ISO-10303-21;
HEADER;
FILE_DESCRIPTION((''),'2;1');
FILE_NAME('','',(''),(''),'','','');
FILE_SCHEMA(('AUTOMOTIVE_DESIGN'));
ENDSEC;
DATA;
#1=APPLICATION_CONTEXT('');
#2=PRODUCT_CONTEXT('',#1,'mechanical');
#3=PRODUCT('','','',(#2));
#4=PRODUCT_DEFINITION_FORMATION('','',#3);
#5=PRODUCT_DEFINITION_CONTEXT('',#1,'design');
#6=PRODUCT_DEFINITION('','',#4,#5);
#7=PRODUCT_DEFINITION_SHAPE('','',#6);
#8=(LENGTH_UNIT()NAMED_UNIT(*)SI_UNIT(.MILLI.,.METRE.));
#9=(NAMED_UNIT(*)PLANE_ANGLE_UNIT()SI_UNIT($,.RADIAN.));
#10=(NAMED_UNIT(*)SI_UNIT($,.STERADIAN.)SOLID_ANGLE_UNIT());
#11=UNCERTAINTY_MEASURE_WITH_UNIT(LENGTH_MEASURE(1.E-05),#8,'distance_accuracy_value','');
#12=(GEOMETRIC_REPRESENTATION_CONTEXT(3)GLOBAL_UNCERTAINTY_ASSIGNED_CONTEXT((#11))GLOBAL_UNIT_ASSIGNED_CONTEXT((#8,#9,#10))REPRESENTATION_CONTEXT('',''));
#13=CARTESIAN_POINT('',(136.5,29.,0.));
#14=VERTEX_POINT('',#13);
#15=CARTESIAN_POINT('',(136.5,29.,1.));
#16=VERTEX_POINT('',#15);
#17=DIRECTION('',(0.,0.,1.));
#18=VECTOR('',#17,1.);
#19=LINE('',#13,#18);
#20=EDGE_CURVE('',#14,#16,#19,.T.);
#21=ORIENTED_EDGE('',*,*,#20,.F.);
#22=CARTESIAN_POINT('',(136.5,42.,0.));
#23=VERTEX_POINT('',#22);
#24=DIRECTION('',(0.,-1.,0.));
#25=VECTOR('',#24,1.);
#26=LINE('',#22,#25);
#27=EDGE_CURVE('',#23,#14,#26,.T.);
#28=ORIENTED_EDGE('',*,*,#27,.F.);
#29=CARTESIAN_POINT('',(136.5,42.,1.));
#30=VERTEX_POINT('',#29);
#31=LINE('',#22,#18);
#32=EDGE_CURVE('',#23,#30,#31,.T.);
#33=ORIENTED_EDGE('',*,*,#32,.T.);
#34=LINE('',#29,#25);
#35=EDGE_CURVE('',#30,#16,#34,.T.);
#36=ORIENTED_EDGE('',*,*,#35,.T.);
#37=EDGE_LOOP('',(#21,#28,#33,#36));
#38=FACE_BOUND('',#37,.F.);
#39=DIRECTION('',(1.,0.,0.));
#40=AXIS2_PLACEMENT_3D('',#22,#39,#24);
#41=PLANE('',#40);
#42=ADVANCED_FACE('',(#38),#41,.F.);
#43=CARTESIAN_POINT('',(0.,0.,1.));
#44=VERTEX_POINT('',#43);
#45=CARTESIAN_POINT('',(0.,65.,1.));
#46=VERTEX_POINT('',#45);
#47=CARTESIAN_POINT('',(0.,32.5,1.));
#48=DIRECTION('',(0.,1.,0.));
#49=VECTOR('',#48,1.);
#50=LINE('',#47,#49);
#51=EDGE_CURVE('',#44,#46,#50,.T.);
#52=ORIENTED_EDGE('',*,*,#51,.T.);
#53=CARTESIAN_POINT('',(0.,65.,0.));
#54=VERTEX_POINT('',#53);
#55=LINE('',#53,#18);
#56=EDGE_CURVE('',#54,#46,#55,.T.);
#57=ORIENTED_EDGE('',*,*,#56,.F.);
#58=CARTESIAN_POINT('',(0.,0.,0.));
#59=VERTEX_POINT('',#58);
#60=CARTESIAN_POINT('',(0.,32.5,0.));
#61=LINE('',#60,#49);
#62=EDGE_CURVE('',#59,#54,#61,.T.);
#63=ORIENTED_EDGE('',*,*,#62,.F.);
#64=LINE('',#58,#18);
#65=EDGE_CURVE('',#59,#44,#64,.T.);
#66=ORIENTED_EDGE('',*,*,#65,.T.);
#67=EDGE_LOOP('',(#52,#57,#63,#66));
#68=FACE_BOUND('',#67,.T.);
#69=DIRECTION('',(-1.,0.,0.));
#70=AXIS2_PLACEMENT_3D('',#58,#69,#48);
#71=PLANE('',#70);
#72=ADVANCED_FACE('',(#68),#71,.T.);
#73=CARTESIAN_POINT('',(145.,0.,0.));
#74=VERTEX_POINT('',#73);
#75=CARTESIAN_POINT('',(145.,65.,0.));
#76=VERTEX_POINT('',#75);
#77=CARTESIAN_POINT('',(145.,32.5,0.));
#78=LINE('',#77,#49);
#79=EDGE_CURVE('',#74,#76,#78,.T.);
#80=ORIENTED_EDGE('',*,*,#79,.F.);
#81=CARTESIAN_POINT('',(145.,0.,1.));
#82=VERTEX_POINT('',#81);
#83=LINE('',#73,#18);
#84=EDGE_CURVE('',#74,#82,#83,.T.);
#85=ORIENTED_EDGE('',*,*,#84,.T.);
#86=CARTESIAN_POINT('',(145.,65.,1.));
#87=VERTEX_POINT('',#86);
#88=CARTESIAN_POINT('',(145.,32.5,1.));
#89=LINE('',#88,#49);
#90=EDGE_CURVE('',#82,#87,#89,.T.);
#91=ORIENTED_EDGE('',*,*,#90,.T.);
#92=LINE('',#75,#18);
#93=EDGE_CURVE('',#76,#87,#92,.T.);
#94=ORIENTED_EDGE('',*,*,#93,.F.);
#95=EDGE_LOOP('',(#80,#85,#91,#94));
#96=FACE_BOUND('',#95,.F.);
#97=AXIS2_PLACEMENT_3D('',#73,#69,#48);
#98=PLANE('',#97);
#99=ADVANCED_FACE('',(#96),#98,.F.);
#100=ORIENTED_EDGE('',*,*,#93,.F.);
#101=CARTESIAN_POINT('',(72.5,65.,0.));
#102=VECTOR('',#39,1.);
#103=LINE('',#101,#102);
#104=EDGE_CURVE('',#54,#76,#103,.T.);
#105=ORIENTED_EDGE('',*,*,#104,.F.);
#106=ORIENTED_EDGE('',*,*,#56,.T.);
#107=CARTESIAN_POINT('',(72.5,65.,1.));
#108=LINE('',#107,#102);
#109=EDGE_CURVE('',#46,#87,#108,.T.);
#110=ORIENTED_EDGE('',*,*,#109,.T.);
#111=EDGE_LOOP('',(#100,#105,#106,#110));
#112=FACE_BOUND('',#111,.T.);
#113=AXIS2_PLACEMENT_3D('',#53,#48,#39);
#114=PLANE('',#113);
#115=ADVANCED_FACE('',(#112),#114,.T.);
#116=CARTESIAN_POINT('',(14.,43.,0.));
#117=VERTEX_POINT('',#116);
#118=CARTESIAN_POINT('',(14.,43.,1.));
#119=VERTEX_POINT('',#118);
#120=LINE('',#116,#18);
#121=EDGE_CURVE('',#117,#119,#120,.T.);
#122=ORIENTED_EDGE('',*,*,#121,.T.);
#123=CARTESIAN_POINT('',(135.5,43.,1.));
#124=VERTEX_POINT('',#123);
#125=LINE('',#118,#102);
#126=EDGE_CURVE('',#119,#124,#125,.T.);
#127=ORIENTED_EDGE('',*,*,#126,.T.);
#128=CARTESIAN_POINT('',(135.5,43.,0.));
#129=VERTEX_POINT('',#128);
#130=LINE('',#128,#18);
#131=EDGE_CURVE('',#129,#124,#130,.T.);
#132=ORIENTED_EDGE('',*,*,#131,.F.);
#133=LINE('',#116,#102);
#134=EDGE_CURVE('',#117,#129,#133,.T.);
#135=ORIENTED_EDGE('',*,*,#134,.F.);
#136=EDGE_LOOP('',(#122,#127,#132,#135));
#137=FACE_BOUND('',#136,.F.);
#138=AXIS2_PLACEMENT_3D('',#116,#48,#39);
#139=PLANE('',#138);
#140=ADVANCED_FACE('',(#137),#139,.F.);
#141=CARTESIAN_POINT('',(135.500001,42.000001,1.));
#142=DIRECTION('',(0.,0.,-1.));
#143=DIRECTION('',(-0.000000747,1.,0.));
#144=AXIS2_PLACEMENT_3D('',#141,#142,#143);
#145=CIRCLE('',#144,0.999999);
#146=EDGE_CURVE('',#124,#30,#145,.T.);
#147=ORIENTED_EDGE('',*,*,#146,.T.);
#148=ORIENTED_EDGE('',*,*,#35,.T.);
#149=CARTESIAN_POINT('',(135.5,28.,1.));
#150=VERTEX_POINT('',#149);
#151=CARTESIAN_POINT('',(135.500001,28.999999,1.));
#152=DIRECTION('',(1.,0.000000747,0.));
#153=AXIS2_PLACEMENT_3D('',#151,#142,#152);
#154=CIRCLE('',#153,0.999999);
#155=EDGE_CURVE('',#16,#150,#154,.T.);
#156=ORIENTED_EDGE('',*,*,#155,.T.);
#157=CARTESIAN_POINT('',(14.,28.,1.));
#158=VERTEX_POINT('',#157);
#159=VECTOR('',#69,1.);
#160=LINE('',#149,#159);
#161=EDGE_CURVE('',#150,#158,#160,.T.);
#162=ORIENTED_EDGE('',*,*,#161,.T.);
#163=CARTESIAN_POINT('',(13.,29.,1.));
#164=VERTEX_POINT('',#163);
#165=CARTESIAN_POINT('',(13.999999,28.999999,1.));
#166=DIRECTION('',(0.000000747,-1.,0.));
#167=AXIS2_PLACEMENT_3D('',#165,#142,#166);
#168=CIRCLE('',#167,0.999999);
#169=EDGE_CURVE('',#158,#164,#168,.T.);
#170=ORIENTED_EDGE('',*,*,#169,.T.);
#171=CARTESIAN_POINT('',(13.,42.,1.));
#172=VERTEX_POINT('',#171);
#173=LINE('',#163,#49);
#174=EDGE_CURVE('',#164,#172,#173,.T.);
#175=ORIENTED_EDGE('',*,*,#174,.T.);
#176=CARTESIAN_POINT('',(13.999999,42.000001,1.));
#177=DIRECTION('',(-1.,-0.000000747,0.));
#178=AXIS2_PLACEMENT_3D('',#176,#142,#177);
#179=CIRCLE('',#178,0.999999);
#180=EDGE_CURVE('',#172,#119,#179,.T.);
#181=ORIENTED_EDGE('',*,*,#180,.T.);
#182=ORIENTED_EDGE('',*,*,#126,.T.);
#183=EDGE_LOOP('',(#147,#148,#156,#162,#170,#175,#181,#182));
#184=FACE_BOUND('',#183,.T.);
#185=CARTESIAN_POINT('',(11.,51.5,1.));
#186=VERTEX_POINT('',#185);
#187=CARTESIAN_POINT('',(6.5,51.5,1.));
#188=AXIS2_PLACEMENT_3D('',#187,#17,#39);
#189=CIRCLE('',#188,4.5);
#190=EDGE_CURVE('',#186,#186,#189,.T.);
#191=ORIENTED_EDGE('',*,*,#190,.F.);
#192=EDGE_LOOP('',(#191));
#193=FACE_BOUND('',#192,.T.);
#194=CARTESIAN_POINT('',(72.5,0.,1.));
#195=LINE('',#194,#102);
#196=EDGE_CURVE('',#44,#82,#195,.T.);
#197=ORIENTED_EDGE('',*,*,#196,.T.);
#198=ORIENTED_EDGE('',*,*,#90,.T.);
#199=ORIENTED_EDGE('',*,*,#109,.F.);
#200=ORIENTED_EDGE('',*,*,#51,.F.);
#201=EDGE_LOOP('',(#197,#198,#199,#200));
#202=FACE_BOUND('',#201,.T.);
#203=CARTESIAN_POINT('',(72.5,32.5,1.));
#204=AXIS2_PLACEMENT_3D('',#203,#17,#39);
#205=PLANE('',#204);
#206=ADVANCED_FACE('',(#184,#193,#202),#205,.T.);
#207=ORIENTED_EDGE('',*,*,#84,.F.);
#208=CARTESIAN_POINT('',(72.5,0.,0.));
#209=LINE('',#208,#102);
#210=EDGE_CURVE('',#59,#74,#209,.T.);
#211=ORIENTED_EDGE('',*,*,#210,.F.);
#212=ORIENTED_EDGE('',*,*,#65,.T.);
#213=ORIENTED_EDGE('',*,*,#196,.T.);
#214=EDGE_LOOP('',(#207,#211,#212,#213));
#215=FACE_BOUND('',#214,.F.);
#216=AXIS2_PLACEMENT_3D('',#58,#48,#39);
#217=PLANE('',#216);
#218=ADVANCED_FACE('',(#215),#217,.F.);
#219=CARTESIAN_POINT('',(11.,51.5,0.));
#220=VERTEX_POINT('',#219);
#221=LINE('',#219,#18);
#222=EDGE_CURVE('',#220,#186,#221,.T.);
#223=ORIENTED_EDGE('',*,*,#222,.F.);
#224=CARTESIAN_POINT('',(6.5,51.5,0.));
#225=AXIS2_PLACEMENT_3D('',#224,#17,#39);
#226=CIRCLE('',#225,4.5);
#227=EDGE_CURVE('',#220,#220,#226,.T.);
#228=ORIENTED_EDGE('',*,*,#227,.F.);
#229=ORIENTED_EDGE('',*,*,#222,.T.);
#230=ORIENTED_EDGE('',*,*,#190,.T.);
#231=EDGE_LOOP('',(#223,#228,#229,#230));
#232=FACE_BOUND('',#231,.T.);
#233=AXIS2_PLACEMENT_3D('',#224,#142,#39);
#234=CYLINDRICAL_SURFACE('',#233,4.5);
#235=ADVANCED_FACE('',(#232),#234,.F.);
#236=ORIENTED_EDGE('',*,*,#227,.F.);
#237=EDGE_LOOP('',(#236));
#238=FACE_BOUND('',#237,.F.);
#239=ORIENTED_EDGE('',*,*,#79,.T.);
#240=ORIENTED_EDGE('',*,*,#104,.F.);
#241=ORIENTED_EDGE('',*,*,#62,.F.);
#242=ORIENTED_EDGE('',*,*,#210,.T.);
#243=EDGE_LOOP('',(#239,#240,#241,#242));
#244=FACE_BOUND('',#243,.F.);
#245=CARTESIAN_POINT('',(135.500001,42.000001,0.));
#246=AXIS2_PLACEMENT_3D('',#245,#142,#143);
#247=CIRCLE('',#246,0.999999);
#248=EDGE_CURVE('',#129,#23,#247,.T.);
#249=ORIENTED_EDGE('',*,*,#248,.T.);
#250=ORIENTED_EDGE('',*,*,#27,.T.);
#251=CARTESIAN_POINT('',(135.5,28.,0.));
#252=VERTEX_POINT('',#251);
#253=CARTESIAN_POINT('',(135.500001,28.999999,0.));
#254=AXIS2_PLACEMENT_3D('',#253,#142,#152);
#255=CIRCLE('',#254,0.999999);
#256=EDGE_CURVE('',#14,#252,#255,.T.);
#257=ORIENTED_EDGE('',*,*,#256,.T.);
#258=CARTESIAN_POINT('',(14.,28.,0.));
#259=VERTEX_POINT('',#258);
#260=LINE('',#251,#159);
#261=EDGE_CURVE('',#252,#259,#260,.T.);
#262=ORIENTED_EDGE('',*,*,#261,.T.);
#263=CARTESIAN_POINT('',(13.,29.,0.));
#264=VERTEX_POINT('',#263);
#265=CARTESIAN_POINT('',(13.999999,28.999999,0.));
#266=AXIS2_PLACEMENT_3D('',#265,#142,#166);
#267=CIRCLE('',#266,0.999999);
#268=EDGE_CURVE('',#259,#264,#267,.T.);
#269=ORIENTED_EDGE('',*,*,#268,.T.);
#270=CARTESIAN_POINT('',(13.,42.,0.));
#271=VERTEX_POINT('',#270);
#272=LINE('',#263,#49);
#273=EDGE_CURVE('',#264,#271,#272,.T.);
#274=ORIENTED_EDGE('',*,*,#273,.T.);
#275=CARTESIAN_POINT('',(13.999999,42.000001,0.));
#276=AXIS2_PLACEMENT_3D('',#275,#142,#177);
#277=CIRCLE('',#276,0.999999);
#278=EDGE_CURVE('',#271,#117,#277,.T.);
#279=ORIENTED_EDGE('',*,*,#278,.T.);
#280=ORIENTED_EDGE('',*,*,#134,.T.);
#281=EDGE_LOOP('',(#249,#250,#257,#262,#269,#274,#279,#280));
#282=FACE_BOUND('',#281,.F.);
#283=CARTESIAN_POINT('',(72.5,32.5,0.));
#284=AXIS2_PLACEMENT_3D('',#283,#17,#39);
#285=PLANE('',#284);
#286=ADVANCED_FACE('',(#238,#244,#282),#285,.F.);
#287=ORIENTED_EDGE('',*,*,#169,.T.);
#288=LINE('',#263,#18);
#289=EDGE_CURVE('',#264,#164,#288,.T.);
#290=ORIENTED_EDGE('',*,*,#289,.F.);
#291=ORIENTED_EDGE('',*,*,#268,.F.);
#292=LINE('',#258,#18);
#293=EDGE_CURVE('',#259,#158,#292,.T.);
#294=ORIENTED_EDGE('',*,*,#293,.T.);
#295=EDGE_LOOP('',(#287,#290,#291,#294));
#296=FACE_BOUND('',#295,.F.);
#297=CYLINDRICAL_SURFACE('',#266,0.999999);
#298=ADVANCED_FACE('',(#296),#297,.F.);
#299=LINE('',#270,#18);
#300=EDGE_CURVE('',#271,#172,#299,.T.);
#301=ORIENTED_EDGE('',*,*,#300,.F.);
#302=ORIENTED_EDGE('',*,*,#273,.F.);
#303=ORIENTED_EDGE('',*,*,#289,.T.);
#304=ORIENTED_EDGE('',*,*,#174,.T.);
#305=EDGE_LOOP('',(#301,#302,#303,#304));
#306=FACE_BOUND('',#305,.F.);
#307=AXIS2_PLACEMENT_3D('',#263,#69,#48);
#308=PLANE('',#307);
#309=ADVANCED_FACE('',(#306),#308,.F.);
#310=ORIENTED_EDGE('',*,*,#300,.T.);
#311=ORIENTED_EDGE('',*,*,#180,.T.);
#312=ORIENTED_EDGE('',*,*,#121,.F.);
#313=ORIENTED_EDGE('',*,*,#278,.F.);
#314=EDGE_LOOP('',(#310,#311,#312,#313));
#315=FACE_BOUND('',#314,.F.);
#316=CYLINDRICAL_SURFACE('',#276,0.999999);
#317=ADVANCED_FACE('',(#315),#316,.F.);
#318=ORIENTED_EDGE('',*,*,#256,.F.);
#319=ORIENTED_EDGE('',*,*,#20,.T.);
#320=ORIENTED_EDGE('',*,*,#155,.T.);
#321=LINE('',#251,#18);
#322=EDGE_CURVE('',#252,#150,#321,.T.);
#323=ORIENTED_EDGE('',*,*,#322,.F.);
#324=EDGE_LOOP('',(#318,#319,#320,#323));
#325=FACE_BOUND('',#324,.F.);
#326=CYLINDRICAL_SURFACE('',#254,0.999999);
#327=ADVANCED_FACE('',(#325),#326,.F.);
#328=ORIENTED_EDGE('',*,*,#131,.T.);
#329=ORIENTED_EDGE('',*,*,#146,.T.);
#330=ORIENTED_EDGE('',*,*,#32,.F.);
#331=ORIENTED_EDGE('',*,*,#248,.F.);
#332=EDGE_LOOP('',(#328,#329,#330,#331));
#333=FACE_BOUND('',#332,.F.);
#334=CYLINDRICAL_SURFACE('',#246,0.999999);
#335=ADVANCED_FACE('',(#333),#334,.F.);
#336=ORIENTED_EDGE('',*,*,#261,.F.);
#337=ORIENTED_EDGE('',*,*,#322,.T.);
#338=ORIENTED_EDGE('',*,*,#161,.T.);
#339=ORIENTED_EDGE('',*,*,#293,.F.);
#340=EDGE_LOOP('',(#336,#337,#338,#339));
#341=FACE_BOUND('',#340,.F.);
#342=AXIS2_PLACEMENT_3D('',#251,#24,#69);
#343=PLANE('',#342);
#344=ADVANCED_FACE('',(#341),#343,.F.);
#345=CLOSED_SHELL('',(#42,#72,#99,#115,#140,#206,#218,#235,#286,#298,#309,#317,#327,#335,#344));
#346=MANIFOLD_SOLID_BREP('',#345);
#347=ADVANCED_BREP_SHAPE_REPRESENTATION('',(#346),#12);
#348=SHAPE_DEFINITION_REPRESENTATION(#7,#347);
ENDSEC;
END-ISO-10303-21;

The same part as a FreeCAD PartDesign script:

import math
import FreeCAD as App
import Part
import Sketcher


def add_polygon(sketch, points):
    """Adds a closed chain of lines whose ends are joined by coincident constraints."""
    first, n = sketch.GeometryCount, len(points)
    for a, b in zip(points, points[1:] + points[:1]):
        sketch.addGeometry(Part.LineSegment(App.Vector(*a, 0), App.Vector(*b, 0)), False)
    for i in range(n):
        sketch.addConstraint(Sketcher.Constraint("Coincident", first + i, 2, first + (i + 1) % n, 1))

doc = App.newDocument("Part")
body = doc.addObject("PartDesign::Body", "Body")

# Sketch on XY plane
sketch1 = doc.addObject("Sketcher::SketchObject", "Sketch")
body.addObject(sketch1)
sketch1.AttachmentSupport = (doc.XY_Plane, [""])
sketch1.MapMode = "FlatFace"
add_polygon(sketch1, [(0, 65), (0, 0), (145, 0), (145, 65)])  # lines 0-3
sketch1.addGeometry(Part.LineSegment(App.Vector(13, 29, 0), App.Vector(13, 42, 0)), False)  # 4
sketch1.addGeometry(Part.ArcOfCircle(Part.Circle(App.Vector(14, 42, 0), App.Vector(0, 0, 1), 1), math.radians(90), math.radians(180)), False)  # 5
sketch1.addGeometry(Part.LineSegment(App.Vector(14, 43, 0), App.Vector(135.5, 43, 0)), False)  # 6
sketch1.addGeometry(Part.ArcOfCircle(Part.Circle(App.Vector(135.5, 42, 0), App.Vector(0, 0, 1), 1), math.radians(0), math.radians(90)), False)  # 7
sketch1.addGeometry(Part.LineSegment(App.Vector(136.5, 42, 0), App.Vector(136.5, 29, 0)), False)  # 8
sketch1.addGeometry(Part.ArcOfCircle(Part.Circle(App.Vector(135.5, 29, 0), App.Vector(0, 0, 1), 1), math.radians(-90), math.radians(0)), False)  # 9
sketch1.addGeometry(Part.LineSegment(App.Vector(135.5, 28, 0), App.Vector(14, 28, 0)), False)  # 10
sketch1.addGeometry(Part.ArcOfCircle(Part.Circle(App.Vector(14, 29, 0), App.Vector(0, 0, 1), 1), math.radians(180), math.radians(270)), False)  # 11
sketch1.addGeometry(Part.Circle(App.Vector(6.5, 51.5, 0), App.Vector(0, 0, 1), 4.5), False)  # 12
sketch1.addConstraint([
    Sketcher.Constraint("Tangent", 4, 2, 5, 2),
    Sketcher.Constraint("Tangent", 5, 1, 6, 1),
    Sketcher.Constraint("Tangent", 6, 2, 7, 2),
    Sketcher.Constraint("Tangent", 7, 1, 8, 1),
    Sketcher.Constraint("Tangent", 8, 2, 9, 2),
    Sketcher.Constraint("Tangent", 9, 1, 10, 1),
    Sketcher.Constraint("Tangent", 10, 2, 11, 2),
    Sketcher.Constraint("Tangent", 11, 1, 4, 1),
    Sketcher.Constraint("Vertical", 0),
    Sketcher.Constraint("Horizontal", 1),
    Sketcher.Constraint("Vertical", 2),
    Sketcher.Constraint("Horizontal", 3),
    Sketcher.Constraint("Vertical", 4),
    Sketcher.Constraint("Horizontal", 6),
    Sketcher.Constraint("Vertical", 8),
    Sketcher.Constraint("Horizontal", 10),
    Sketcher.Constraint("Coincident", 0, 2, -1, 1),
    Sketcher.Constraint("Equal", 5, 7),
    Sketcher.Constraint("Equal", 7, 9),
    Sketcher.Constraint("Equal", 9, 11),
    Sketcher.Constraint("Diameter", 12, 9.0),
    Sketcher.Constraint("Radius", 5, 0.999999),
    Sketcher.Constraint("DistanceX", 1, 1, 1, 2, 145.0),
    Sketcher.Constraint("DistanceY", 0, 2, 0, 1, 65.0),
    Sketcher.Constraint("DistanceY", 4, 1, 4, 2, 13.0),
    Sketcher.Constraint("DistanceX", 6, 1, 6, 2, 121.5),
    Sketcher.Constraint("DistanceX", -1, 1, 5, 3, 13.999999),
    Sketcher.Constraint("DistanceY", -1, 1, 5, 3, 42.000001),
    Sketcher.Constraint("DistanceX", 12, 3, 7, 3, 129.000001),
    Sketcher.Constraint("DistanceY", -1, 1, 12, 3, 51.5),
])
pad1 = doc.addObject("PartDesign::Pad", "Pad")
body.addObject(pad1)
pad1.Profile = sketch1
pad1.Length = 1

doc.recompute()
